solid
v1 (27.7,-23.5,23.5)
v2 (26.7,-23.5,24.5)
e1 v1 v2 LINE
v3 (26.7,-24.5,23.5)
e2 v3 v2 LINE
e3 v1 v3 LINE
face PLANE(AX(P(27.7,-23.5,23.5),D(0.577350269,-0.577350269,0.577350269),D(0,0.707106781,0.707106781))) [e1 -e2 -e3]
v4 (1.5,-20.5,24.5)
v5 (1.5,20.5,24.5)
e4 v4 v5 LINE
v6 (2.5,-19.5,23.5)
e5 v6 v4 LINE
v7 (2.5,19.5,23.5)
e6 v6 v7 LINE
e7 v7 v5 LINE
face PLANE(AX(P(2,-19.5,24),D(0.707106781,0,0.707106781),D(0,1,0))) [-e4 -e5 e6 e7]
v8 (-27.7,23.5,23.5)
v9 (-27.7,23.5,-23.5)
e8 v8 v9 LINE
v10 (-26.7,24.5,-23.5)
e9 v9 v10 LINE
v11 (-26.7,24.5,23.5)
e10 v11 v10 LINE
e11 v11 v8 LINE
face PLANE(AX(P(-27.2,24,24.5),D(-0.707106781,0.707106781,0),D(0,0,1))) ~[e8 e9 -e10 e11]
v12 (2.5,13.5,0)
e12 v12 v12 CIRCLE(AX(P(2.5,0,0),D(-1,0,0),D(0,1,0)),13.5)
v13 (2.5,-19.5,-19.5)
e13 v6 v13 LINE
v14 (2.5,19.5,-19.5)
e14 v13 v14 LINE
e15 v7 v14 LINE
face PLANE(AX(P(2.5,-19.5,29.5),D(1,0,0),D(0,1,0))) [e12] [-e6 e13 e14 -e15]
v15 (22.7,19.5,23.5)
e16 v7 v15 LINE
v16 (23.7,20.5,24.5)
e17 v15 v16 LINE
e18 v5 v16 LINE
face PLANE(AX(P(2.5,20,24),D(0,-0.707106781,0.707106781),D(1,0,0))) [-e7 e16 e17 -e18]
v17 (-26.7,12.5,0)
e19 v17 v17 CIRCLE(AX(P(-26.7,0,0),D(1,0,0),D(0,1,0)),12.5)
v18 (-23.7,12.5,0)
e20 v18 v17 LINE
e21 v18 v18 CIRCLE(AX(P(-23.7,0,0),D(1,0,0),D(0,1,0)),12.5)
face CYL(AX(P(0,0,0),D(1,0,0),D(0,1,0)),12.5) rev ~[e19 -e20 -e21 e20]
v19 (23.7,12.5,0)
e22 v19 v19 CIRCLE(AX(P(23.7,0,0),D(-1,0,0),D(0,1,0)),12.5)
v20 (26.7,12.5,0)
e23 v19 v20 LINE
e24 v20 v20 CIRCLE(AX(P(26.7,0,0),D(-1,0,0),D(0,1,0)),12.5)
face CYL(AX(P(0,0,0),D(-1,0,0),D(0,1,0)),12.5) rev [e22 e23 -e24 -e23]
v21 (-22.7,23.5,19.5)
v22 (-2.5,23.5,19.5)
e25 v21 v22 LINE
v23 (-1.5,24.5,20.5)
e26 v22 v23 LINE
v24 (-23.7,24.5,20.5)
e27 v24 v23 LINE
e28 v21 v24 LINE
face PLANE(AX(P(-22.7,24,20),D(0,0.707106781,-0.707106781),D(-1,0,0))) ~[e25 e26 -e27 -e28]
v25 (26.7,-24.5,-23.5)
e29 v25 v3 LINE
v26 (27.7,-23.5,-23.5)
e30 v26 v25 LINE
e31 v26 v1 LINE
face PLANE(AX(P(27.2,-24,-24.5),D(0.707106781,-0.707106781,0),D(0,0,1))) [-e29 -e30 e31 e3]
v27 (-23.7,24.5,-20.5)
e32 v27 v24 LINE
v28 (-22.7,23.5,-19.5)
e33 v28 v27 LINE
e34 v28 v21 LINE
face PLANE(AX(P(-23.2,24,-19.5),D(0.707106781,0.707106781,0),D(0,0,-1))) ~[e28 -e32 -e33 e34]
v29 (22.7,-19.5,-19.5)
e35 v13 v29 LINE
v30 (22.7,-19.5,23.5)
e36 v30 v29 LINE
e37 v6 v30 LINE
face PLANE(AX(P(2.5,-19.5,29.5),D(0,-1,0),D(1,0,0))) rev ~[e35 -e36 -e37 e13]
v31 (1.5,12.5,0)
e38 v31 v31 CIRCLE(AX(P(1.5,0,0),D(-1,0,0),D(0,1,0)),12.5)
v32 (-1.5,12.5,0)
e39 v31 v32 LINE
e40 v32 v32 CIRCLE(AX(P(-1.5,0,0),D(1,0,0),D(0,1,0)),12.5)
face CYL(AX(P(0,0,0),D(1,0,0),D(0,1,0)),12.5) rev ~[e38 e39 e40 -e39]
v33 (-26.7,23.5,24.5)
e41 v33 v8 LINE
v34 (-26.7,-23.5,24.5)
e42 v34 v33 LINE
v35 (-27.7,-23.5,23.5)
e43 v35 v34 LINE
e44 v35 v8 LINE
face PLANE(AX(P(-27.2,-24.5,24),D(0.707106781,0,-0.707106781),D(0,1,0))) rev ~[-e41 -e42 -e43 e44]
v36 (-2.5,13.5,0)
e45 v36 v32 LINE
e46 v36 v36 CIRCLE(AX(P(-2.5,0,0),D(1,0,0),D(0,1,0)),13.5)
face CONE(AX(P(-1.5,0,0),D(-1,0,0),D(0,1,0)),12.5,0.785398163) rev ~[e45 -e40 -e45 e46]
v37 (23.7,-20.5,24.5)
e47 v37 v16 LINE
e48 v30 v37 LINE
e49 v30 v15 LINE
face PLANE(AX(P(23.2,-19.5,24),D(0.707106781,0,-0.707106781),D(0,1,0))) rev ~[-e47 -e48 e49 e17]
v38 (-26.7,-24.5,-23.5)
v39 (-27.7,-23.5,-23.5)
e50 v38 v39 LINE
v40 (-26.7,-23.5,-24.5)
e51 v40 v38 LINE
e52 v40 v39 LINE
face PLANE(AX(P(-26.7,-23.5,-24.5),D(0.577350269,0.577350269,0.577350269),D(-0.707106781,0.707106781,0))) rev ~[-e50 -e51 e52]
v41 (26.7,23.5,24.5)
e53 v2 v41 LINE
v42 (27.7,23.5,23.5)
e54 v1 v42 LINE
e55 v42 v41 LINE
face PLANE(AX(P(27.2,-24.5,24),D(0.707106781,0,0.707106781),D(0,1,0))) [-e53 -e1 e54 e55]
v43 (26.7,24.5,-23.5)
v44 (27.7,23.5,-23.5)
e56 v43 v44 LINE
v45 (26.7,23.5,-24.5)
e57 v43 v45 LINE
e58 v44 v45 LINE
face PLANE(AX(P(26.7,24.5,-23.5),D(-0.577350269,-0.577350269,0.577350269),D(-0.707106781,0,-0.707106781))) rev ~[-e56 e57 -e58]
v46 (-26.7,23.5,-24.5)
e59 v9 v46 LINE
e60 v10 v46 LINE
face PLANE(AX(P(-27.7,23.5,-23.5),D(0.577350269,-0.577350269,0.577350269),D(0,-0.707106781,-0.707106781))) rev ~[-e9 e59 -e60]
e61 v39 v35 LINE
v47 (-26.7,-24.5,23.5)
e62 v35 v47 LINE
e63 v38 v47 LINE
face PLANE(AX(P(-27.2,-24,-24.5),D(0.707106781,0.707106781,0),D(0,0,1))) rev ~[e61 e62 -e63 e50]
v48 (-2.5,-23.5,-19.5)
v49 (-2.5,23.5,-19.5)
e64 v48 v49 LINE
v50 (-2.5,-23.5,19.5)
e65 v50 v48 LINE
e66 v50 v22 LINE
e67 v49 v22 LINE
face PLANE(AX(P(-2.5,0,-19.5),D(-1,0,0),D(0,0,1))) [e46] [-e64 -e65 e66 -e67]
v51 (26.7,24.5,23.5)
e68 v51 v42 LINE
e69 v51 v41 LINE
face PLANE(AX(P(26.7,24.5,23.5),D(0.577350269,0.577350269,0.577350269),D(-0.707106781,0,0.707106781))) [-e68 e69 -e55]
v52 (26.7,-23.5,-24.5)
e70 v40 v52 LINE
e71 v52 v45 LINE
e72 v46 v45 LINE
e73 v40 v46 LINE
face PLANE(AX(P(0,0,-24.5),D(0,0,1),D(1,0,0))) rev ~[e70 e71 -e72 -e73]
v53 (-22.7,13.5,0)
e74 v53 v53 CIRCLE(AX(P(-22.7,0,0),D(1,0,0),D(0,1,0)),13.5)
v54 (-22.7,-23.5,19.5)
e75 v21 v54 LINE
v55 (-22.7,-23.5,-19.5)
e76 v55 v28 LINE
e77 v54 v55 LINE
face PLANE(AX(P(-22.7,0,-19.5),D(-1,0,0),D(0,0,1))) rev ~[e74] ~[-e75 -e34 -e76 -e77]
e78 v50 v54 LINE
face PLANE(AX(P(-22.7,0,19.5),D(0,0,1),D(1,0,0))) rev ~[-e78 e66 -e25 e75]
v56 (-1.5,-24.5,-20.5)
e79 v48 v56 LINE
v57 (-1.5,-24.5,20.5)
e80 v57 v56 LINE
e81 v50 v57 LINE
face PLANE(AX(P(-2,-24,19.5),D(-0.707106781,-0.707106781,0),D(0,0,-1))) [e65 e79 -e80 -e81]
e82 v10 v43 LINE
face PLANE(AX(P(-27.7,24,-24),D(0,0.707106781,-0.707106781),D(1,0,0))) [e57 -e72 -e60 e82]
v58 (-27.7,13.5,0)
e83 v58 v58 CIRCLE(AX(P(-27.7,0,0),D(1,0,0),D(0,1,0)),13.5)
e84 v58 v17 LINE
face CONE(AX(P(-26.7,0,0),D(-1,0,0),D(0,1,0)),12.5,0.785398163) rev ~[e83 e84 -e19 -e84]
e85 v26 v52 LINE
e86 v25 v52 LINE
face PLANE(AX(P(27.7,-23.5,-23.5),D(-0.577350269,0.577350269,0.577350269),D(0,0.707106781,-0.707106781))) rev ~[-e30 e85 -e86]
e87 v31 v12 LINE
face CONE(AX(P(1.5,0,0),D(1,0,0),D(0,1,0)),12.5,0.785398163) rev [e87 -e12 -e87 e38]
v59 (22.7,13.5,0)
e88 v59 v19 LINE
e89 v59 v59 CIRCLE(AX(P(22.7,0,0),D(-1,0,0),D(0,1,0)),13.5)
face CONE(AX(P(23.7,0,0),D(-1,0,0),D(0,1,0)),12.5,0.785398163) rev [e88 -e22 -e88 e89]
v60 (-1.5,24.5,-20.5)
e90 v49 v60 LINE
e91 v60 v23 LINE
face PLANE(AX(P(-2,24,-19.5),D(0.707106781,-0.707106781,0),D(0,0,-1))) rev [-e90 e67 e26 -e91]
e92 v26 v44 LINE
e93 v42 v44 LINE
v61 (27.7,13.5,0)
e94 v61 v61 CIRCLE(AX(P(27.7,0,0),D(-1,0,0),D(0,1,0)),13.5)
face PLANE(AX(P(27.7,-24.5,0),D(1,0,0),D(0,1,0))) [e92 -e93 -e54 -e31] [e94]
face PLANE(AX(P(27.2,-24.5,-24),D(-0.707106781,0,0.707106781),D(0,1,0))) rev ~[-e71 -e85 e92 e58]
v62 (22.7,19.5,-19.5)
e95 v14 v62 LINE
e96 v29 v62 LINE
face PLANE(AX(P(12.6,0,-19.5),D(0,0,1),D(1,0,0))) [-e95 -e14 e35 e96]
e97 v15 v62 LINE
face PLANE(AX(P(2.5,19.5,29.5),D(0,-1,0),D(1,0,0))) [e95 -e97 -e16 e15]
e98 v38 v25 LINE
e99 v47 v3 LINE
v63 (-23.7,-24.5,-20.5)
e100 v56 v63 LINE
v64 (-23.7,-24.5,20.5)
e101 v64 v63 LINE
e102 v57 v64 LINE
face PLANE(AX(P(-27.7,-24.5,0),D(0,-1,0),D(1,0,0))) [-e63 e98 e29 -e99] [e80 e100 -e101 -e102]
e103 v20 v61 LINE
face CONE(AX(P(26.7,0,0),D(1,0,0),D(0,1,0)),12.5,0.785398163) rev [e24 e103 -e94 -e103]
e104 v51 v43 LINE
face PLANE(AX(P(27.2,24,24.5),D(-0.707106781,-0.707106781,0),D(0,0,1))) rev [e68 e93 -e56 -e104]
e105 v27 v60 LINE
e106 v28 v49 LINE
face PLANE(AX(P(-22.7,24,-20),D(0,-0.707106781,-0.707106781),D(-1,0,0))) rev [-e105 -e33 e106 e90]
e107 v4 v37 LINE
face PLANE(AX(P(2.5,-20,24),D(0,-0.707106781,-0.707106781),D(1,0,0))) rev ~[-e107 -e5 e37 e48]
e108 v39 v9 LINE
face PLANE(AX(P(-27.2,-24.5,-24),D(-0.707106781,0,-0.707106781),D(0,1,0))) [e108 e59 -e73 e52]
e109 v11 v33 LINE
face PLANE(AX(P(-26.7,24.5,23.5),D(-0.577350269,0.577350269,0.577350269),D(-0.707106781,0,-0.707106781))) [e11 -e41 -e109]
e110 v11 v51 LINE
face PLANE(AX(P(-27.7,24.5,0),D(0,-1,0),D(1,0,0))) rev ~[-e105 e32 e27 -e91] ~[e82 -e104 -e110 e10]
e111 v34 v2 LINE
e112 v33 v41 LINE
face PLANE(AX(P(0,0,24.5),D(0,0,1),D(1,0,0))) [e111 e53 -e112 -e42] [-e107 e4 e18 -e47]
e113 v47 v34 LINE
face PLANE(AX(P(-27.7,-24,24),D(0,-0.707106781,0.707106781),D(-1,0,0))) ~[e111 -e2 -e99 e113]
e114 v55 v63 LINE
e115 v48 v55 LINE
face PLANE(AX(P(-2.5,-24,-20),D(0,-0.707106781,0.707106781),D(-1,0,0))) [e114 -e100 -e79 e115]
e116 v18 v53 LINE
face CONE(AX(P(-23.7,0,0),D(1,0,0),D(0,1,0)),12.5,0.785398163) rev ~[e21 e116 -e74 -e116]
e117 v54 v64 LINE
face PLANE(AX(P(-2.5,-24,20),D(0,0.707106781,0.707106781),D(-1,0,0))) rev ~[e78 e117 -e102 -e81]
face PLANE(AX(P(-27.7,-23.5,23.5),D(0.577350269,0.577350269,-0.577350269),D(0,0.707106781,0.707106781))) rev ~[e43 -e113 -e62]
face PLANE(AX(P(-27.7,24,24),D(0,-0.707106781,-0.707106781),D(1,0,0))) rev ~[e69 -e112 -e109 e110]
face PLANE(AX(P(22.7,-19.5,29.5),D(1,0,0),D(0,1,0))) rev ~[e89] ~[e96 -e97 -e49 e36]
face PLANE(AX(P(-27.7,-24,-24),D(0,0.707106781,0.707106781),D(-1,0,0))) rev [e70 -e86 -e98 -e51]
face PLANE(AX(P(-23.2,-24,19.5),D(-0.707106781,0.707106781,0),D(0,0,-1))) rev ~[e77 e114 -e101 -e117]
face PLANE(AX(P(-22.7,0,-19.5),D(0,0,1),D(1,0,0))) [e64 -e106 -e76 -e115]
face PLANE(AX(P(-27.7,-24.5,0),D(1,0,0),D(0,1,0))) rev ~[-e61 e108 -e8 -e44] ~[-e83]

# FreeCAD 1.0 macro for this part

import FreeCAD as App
import Part
import Sketcher
from FreeCAD import Vector
Q = App.Units.Quantity


def edges_at(feature, points):
    """Names of the edges that pass closest to the given points."""
    edges = feature.Shape.Edges
    near = lambda p: min(range(len(edges)), key=lambda i: edges[i].distToShape(Part.Vertex(*p))[0])
    return sorted({f"Edge{near(p) + 1}" for p in points})


def add_polygon(sketch, points):
    """Adds a closed chain of lines whose ends are joined by coincident constraints."""
    first, n = sketch.GeometryCount, len(points)
    for a, b in zip(points, points[1:] + points[:1]):
        sketch.addGeometry(Part.LineSegment(App.Vector(*a, 0), App.Vector(*b, 0)), False)
    for i in range(n):
        sketch.addConstraint(Sketcher.Constraint("Coincident", first + i, 2, first + (i + 1) % n, 1))

doc = App.newDocument("Part")
body = doc.addObject("PartDesign::Body", "Body")

# Sketch on XY plane
sketch1 = doc.addObject("Sketcher::SketchObject", "Sketch")
body.addObject(sketch1)
sketch1.AttachmentSupport = (doc.XY_Plane, [""])
sketch1.MapMode = "FlatFace"
add_polygon(sketch1, [(-27.7, 24.5), (-27.7, -24.5), (27.7, -24.5), (27.7, 24.5)])  # lines 0-3
sketch1.addConstraint(Sketcher.Constraint("Vertical", 0))
sketch1.addConstraint(Sketcher.Constraint("Horizontal", 1))
sketch1.addConstraint(Sketcher.Constraint("Vertical", 2))
sketch1.addConstraint(Sketcher.Constraint("Horizontal", 3))
sketch1.addConstraint(Sketcher.Constraint("Symmetric", 0, 2, 2, 2, -1, 1))
sketch1.addConstraint(Sketcher.Constraint("DistanceY", 0, 2, 0, 1, Q("49 mm")))
sketch1.addConstraint(Sketcher.Constraint("DistanceX", 1, 1, 1, 2, Q("55.4 mm")))
pad1 = doc.addObject("PartDesign::Pad", "Pad")
body.addObject(pad1)
pad1.Profile = sketch1
pad1.Length = 49
pad1.Midplane = True

# Sketch on XY plane
sketch2 = doc.addObject("Sketcher::SketchObject", "Sketch001")
body.addObject(sketch2)
sketch2.AttachmentSupport = (doc.XY_Plane, [""])
sketch2.MapMode = "FlatFace"
sketch2.AttachmentOffset = App.Placement(Vector(0, 0, 29.5), App.Rotation())
add_polygon(sketch2, [(2.5, 19.5), (2.5, -19.5), (22.7, -19.5), (22.7, 19.5)])  # lines 0-3
sketch2.addConstraint(Sketcher.Constraint("Vertical", 0))
sketch2.addConstraint(Sketcher.Constraint("Horizontal", 1))
sketch2.addConstraint(Sketcher.Constraint("Vertical", 2))
sketch2.addConstraint(Sketcher.Constraint("Horizontal", 3))
sketch2.addConstraint(Sketcher.Constraint("DistanceY", 0, 2, 0, 1, Q("39 mm")))
sketch2.addConstraint(Sketcher.Constraint("DistanceX", 1, 1, 1, 2, Q("20.2 mm")))
sketch2.addConstraint(Sketcher.Constraint("DistanceX", -1, 1, 0, 2, Q("2.5 mm")))
sketch2.addConstraint(Sketcher.Constraint("DistanceY", 0, 2, -1, 1, Q("19.5 mm")))
pocket1 = doc.addObject("PartDesign::Pocket", "Pocket")
body.addObject(pocket1)
pocket1.Profile = sketch2
pocket1.Length = 49

# Sketch on XZ plane
sketch3 = doc.addObject("Sketcher::SketchObject", "Sketch002")
body.addObject(sketch3)
sketch3.AttachmentSupport = (doc.XZ_Plane, [""])
sketch3.MapMode = "FlatFace"
add_polygon(sketch3, [(-22.7, 19.5), (-22.7, -19.5), (-2.5, -19.5), (-2.5, 19.5)])  # lines 0-3
sketch3.addConstraint(Sketcher.Constraint("Vertical", 0))
sketch3.addConstraint(Sketcher.Constraint("Horizontal", 1))
sketch3.addConstraint(Sketcher.Constraint("Vertical", 2))
sketch3.addConstraint(Sketcher.Constraint("Horizontal", 3))
sketch3.addConstraint(Sketcher.Constraint("DistanceY", 0, 2, 0, 1, Q("39 mm")))
sketch3.addConstraint(Sketcher.Constraint("DistanceX", 1, 1, 1, 2, Q("20.2 mm")))
sketch3.addConstraint(Sketcher.Constraint("DistanceX", 0, 2, -1, 1, Q("22.7 mm")))
sketch3.addConstraint(Sketcher.Constraint("DistanceY", 0, 2, -1, 1, Q("19.5 mm")))
pocket2 = doc.addObject("PartDesign::Pocket", "Pocket001")
body.addObject(pocket2)
pocket2.Profile = sketch3
pocket2.Type = "ThroughAll"
pocket2.Midplane = True

# Sketch on YZ plane
sketch4 = doc.addObject("Sketcher::SketchObject", "Sketch003")
body.addObject(sketch4)
sketch4.AttachmentSupport = (doc.YZ_Plane, [""])
sketch4.MapMode = "FlatFace"
sketch4.addGeometry(Part.Circle(Vector(0, 0, 0), Vector(0, 0, 1), 12.5), False)
sketch4.addConstraint(Sketcher.Constraint("Coincident", 0, 3, -1, 1))
sketch4.addConstraint(Sketcher.Constraint("Diameter", 0, Q("25 mm")))
pocket3 = doc.addObject("PartDesign::Pocket", "Pocket002")
body.addObject(pocket3)
pocket3.Profile = sketch4
pocket3.Type = "ThroughAll"
pocket3.Midplane = True
doc.recompute()

chamfer = doc.addObject("PartDesign::Chamfer", "Chamfer")
body.addObject(chamfer)
chamfer.Base = (pocket3, edges_at(pocket3, [
    (0, -24.5, 24.5),
    (-27.7, -24.5, 0),
    (0, -24.5, -24.5),
    (-12.6, -24.5, -19.5),
    (-22.7, -24.5, 0),
    (-12.6, -24.5, 19.5),
    (-2.5, -24.5, 0),
    (27.7, -24.5, 0),
    (27.7, 0, 24.5),
    (27.7, -12.5, 0),
    (27.7, 0, -24.5),
    (27.7, 24.5, 0),
    (22.7, 0, 24.5),
    (12.6, -19.5, 24.5),
    (2.5, 0, 24.5),
    (12.6, 19.5, 24.5),
    (-27.7, 0, 24.5),
    (0, 24.5, 24.5),
    (2.5, -12.5, 0),
    (22.7, -12.5, 0),
    (0, 24.5, -24.5),
    (-2.5, 24.5, 0),
    (-12.6, 24.5, -19.5),
    (-22.7, 24.5, 0),
    (-12.6, 24.5, 19.5),
    (-27.7, 24.5, 0),
    (-27.7, 0, -24.5),
    (-27.7, -12.5, 0),
    (-22.7, -12.5, 0),
    (-2.5, -12.5, 0),
]))
chamfer.Size = 1

doc.recompute()
